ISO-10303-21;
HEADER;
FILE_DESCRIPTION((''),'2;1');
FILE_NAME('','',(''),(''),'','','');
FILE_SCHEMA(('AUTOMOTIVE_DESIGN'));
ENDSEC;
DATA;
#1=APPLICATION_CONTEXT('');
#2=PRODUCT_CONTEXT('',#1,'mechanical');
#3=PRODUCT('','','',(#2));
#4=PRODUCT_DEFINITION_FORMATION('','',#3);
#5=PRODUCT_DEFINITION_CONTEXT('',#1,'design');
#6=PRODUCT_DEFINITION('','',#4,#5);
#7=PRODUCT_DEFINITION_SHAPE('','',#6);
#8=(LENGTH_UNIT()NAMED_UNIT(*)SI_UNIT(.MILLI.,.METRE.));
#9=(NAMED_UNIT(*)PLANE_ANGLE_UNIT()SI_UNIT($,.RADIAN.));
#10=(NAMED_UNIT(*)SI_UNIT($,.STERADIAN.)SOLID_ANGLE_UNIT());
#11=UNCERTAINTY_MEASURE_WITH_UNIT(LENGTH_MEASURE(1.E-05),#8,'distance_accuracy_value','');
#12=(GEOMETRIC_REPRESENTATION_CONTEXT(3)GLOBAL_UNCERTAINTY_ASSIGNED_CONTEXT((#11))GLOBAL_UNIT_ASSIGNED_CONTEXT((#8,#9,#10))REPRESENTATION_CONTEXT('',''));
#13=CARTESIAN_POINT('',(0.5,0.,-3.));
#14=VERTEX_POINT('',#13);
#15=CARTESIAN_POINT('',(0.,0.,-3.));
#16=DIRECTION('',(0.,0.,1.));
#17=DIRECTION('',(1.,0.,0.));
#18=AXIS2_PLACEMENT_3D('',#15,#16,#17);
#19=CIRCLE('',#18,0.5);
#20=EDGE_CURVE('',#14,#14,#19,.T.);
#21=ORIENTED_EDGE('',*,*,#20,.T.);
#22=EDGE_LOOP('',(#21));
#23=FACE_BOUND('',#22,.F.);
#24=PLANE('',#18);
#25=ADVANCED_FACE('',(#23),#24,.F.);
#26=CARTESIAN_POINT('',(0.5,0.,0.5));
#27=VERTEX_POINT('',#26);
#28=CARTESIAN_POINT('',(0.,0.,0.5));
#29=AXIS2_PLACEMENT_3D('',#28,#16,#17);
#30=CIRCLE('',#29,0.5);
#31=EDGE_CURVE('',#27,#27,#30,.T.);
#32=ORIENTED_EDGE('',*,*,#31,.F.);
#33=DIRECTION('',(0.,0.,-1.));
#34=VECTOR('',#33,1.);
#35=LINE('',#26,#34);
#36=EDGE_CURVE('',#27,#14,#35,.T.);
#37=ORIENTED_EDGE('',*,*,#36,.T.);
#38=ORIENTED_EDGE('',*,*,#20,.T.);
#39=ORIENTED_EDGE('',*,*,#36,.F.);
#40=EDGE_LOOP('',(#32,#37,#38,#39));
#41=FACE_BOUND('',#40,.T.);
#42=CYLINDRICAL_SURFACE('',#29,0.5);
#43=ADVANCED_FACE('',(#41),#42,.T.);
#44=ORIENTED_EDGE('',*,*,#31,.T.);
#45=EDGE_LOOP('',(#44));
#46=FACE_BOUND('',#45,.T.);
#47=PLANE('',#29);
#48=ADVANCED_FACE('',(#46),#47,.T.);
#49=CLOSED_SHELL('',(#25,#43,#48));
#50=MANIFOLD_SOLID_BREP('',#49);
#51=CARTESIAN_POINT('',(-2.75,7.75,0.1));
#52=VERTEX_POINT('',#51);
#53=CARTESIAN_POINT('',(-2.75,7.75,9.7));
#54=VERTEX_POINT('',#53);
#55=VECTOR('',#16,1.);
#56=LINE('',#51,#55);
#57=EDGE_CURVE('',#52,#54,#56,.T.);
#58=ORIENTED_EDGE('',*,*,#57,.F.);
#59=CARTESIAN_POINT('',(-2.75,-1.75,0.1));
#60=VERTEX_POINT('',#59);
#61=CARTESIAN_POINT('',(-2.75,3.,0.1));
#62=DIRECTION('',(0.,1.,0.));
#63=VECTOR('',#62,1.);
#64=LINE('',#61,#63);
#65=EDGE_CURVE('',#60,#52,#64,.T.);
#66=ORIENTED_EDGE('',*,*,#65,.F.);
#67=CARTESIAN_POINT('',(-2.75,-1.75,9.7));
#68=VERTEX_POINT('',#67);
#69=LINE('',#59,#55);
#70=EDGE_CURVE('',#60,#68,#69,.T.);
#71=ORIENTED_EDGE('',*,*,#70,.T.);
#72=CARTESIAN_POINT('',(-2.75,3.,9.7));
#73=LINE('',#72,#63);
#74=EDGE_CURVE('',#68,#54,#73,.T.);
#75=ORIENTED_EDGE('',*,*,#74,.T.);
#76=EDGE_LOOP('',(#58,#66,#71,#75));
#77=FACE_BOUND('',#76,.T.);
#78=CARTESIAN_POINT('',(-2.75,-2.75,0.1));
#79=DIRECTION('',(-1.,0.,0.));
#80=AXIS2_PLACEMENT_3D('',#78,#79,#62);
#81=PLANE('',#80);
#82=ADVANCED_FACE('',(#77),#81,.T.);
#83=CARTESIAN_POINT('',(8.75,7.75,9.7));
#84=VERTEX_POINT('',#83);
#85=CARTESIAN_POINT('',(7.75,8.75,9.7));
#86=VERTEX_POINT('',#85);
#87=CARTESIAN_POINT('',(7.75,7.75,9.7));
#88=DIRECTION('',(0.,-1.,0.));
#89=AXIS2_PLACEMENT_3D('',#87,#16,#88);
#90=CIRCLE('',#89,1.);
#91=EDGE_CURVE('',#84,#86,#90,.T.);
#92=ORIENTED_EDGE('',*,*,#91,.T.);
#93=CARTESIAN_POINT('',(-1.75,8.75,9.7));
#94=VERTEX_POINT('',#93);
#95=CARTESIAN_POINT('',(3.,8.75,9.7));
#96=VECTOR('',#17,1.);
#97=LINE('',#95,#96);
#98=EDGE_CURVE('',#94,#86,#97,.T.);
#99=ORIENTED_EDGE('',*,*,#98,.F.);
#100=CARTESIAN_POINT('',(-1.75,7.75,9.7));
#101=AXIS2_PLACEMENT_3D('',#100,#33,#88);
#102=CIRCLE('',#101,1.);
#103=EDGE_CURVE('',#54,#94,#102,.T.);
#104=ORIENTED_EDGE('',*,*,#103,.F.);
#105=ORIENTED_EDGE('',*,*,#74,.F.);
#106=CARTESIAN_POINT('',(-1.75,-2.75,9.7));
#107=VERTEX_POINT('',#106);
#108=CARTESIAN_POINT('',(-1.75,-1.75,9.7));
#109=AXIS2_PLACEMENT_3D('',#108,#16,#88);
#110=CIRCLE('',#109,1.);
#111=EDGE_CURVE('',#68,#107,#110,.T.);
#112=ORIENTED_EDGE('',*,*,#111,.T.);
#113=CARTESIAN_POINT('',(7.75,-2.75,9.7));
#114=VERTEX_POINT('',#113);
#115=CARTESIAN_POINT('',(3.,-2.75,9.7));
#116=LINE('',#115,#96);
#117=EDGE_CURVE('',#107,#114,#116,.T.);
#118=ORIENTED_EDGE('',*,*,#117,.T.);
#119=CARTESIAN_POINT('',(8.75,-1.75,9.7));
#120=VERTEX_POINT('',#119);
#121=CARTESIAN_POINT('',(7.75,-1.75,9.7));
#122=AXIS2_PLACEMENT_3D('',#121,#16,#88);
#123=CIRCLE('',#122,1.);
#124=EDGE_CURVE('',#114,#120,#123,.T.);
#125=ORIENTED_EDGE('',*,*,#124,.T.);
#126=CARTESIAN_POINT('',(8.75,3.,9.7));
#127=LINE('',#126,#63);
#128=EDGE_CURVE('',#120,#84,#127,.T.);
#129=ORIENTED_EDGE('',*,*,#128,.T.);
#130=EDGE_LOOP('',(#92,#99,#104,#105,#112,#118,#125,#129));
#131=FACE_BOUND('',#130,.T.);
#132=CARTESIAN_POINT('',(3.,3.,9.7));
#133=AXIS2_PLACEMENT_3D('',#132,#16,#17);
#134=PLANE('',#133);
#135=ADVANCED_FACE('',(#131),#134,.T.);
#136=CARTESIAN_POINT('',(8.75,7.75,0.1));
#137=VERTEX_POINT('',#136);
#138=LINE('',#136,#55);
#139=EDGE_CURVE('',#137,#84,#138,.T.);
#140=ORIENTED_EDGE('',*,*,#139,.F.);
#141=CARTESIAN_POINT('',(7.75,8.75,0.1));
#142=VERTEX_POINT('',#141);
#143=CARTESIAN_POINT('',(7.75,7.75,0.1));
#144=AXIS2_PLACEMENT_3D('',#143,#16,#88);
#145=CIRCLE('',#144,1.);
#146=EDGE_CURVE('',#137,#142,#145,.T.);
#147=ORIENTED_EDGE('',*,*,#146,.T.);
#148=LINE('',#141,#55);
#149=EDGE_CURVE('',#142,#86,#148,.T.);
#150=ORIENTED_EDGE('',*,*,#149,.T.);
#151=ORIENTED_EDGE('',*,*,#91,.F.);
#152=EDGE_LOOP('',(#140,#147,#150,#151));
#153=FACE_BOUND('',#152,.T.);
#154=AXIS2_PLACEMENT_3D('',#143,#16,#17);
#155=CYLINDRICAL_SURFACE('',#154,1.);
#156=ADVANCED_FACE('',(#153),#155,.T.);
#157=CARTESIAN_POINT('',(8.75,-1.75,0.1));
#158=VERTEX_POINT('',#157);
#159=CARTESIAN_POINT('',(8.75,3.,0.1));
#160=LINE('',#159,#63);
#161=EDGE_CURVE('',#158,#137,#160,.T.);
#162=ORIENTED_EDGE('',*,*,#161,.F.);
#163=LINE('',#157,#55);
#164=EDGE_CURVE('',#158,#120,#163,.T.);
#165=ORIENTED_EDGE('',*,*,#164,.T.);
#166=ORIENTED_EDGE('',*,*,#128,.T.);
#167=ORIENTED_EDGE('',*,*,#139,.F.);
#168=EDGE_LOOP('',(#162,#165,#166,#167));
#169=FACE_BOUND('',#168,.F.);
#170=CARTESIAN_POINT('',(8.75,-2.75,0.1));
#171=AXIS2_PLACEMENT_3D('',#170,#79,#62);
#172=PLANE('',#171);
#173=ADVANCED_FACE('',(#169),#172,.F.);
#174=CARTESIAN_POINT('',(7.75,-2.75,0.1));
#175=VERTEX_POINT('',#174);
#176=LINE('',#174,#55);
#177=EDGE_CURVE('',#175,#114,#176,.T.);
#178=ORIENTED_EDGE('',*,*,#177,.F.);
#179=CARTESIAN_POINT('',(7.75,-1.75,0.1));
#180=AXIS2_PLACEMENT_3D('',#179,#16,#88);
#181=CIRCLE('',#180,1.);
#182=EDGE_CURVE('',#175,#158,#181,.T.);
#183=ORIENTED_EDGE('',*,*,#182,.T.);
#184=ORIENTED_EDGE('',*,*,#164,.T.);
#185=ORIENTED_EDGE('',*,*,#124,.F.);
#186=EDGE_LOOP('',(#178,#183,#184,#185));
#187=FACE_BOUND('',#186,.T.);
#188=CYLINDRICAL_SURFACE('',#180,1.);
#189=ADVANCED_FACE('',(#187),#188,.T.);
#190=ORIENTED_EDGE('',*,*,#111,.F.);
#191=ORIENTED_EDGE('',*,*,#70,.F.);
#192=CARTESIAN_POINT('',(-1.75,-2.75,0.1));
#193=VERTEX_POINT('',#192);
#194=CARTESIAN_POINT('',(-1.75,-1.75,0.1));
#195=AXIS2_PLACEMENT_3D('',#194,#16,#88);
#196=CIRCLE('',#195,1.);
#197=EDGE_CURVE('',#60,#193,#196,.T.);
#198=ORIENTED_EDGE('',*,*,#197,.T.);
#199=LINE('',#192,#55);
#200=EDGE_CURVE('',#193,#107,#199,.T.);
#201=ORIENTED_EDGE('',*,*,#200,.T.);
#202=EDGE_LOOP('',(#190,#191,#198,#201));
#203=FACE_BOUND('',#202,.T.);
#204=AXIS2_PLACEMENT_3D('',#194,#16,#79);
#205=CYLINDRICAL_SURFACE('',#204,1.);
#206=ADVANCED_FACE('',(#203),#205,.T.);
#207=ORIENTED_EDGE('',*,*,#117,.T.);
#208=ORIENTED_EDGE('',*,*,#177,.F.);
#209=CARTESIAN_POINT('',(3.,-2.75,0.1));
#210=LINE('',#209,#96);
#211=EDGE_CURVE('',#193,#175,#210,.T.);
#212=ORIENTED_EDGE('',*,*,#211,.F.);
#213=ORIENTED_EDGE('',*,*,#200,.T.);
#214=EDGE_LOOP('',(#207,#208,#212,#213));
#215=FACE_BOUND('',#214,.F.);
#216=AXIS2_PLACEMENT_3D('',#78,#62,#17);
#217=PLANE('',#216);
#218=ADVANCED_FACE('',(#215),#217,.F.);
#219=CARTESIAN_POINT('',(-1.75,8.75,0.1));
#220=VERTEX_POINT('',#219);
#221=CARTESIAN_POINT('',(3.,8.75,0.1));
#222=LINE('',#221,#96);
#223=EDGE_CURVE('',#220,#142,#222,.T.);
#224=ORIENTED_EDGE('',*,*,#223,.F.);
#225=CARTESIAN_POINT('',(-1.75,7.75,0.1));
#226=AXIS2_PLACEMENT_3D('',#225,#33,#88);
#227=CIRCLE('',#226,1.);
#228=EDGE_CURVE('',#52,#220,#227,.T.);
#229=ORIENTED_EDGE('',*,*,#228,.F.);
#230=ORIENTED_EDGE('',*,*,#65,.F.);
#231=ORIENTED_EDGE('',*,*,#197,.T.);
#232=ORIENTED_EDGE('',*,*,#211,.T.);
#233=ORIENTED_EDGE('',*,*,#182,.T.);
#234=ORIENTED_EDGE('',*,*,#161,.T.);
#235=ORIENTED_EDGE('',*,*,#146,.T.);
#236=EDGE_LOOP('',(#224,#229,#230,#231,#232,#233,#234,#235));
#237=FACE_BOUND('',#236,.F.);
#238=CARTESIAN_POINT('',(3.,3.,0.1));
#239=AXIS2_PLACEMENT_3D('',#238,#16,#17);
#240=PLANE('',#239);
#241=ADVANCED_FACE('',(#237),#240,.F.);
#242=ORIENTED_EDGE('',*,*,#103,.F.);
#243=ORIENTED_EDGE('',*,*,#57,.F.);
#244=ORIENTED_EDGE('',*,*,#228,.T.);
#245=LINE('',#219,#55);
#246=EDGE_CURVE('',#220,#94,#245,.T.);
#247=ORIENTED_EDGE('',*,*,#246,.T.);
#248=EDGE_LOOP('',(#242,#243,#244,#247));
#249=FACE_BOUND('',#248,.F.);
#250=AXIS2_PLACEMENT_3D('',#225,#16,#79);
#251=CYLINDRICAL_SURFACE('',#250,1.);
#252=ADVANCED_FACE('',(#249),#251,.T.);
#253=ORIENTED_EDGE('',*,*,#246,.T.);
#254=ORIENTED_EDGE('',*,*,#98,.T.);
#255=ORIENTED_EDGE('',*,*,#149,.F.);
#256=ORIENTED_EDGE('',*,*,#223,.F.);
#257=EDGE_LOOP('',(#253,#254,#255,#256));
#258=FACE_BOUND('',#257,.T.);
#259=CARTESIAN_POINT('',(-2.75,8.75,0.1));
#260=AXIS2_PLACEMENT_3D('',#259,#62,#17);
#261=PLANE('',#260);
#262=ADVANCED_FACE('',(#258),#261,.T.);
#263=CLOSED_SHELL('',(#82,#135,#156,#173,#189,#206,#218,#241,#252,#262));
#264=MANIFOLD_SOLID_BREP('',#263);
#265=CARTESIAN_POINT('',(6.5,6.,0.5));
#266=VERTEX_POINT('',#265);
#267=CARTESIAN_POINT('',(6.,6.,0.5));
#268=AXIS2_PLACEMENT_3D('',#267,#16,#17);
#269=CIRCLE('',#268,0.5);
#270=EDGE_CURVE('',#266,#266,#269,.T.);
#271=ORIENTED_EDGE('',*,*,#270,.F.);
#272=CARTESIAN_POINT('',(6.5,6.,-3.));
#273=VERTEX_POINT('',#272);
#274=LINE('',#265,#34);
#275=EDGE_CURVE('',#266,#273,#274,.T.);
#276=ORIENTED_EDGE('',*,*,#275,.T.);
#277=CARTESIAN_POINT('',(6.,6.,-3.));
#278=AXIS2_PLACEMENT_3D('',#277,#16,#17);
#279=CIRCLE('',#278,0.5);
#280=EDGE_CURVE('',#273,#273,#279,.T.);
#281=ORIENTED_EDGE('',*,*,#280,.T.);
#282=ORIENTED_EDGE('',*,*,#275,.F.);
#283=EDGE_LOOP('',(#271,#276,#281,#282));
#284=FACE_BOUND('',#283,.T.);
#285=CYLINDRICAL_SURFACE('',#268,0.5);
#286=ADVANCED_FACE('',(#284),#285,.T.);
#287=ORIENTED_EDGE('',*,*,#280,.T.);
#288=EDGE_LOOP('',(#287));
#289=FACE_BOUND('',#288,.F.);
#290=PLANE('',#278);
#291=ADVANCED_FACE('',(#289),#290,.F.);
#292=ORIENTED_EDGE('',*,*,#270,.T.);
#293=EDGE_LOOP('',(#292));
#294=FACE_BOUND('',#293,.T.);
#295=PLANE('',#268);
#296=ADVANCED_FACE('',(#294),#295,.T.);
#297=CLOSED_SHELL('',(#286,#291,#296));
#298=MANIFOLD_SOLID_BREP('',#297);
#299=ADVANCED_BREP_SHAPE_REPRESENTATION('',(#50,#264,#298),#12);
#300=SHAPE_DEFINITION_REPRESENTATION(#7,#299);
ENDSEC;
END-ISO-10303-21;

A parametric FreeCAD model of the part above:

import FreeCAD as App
import Part
import Sketcher
from FreeCAD import Vector
Q = App.Units.Quantity


def edges_at(feature, points):
    """Names of the edges that pass closest to the given points."""
    edges = feature.Shape.Edges
    near = lambda p: min(range(len(edges)), key=lambda i: edges[i].distToShape(Part.Vertex(*p))[0])
    return sorted({f"Edge{near(p) + 1}" for p in points})


def add_polygon(sketch, points):
    """Adds a closed chain of lines whose ends are joined by coincident constraints."""
    first, n = sketch.GeometryCount, len(points)
    for a, b in zip(points, points[1:] + points[:1]):
        sketch.addGeometry(Part.LineSegment(App.Vector(*a, 0), App.Vector(*b, 0)), False)
    for i in range(n):
        sketch.addConstraint(Sketcher.Constraint("Coincident", first + i, 2, first + (i + 1) % n, 1))

doc = App.newDocument("Part")
body = doc.addObject("PartDesign::Body", "Body")
body.AllowCompound = True

# Sketch on XY plane
sketch1 = body.newObject("Sketcher::SketchObject", "Sketch")
sketch1.AttachmentSupport = (doc.getObject("XY_Plane"), [""])
sketch1.MapMode = "FlatFace"
sketch1.AttachmentOffset = App.Placement(Vector(0, 0, 0.5), App.Rotation())
sketch1.addGeometry(Part.Circle(Vector(0, 0, 0), Vector(0, 0, 1), 0.5), False)
sketch1.addGeometry(Part.Circle(Vector(6, 6, 0), Vector(0, 0, 1), 0.5), False)
sketch1.addConstraint(Sketcher.Constraint("Coincident", 0, 3, -1, 1))
sketch1.addConstraint(Sketcher.Constraint("Equal", 0, 1))
sketch1.addConstraint(Sketcher.Constraint("Diameter", 0, Q("1 mm")))
sketch1.addConstraint(Sketcher.Constraint("DistanceX", -1, 1, 1, 3, Q("6 mm")))
sketch1.addConstraint(Sketcher.Constraint("DistanceY", -1, 1, 1, 3, Q("6 mm")))
pad1 = body.newObject("PartDesign::Pad", "Pad")
pad1.Profile = sketch1
pad1.Length = 3.5
pad1.Reversed = True
body2 = doc.addObject("PartDesign::Body", "Body001")

# Sketch on XY plane
sketch2 = body2.newObject("Sketcher::SketchObject", "Sketch001")
sketch2.AttachmentSupport = (doc.getObject("XY_Plane001"), [""])
sketch2.MapMode = "FlatFace"
sketch2.AttachmentOffset = App.Placement(Vector(0, 0, 0.1), App.Rotation())
add_polygon(sketch2, [(-2.75, 8.75), (-2.75, -2.75), (8.75, -2.75), (8.75, 8.75)])  # lines 0-3
sketch2.addConstraint(Sketcher.Constraint("Vertical", 0))
sketch2.addConstraint(Sketcher.Constraint("Horizontal", 1))
sketch2.addConstraint(Sketcher.Constraint("Vertical", 2))
sketch2.addConstraint(Sketcher.Constraint("Horizontal", 3))
sketch2.addConstraint(Sketcher.Constraint("Equal", 3, 0))
sketch2.addConstraint(Sketcher.Constraint("DistanceX", 1, 1, 1, 2, Q("11.5 mm")))
sketch2.addConstraint(Sketcher.Constraint("DistanceX", 0, 2, -1, 1, Q("2.75 mm")))
sketch2.addConstraint(Sketcher.Constraint("DistanceY", 0, 2, -1, 1, Q("2.75 mm")))
pad2 = body2.newObject("PartDesign::Pad", "Pad001")
pad2.Profile = sketch2
pad2.Length = 9.6
doc.recompute()

fillet = body2.newObject("PartDesign::Fillet", "Fillet")
fillet.Base = (pad2, edges_at(pad2, [
    (8.75, -2.75, 4.9),
    (8.75, 8.75, 4.9),
    (-2.75, -2.75, 4.9),
    (-2.75, 8.75, 4.9),
]))
fillet.Radius = 1

doc.recompute()
